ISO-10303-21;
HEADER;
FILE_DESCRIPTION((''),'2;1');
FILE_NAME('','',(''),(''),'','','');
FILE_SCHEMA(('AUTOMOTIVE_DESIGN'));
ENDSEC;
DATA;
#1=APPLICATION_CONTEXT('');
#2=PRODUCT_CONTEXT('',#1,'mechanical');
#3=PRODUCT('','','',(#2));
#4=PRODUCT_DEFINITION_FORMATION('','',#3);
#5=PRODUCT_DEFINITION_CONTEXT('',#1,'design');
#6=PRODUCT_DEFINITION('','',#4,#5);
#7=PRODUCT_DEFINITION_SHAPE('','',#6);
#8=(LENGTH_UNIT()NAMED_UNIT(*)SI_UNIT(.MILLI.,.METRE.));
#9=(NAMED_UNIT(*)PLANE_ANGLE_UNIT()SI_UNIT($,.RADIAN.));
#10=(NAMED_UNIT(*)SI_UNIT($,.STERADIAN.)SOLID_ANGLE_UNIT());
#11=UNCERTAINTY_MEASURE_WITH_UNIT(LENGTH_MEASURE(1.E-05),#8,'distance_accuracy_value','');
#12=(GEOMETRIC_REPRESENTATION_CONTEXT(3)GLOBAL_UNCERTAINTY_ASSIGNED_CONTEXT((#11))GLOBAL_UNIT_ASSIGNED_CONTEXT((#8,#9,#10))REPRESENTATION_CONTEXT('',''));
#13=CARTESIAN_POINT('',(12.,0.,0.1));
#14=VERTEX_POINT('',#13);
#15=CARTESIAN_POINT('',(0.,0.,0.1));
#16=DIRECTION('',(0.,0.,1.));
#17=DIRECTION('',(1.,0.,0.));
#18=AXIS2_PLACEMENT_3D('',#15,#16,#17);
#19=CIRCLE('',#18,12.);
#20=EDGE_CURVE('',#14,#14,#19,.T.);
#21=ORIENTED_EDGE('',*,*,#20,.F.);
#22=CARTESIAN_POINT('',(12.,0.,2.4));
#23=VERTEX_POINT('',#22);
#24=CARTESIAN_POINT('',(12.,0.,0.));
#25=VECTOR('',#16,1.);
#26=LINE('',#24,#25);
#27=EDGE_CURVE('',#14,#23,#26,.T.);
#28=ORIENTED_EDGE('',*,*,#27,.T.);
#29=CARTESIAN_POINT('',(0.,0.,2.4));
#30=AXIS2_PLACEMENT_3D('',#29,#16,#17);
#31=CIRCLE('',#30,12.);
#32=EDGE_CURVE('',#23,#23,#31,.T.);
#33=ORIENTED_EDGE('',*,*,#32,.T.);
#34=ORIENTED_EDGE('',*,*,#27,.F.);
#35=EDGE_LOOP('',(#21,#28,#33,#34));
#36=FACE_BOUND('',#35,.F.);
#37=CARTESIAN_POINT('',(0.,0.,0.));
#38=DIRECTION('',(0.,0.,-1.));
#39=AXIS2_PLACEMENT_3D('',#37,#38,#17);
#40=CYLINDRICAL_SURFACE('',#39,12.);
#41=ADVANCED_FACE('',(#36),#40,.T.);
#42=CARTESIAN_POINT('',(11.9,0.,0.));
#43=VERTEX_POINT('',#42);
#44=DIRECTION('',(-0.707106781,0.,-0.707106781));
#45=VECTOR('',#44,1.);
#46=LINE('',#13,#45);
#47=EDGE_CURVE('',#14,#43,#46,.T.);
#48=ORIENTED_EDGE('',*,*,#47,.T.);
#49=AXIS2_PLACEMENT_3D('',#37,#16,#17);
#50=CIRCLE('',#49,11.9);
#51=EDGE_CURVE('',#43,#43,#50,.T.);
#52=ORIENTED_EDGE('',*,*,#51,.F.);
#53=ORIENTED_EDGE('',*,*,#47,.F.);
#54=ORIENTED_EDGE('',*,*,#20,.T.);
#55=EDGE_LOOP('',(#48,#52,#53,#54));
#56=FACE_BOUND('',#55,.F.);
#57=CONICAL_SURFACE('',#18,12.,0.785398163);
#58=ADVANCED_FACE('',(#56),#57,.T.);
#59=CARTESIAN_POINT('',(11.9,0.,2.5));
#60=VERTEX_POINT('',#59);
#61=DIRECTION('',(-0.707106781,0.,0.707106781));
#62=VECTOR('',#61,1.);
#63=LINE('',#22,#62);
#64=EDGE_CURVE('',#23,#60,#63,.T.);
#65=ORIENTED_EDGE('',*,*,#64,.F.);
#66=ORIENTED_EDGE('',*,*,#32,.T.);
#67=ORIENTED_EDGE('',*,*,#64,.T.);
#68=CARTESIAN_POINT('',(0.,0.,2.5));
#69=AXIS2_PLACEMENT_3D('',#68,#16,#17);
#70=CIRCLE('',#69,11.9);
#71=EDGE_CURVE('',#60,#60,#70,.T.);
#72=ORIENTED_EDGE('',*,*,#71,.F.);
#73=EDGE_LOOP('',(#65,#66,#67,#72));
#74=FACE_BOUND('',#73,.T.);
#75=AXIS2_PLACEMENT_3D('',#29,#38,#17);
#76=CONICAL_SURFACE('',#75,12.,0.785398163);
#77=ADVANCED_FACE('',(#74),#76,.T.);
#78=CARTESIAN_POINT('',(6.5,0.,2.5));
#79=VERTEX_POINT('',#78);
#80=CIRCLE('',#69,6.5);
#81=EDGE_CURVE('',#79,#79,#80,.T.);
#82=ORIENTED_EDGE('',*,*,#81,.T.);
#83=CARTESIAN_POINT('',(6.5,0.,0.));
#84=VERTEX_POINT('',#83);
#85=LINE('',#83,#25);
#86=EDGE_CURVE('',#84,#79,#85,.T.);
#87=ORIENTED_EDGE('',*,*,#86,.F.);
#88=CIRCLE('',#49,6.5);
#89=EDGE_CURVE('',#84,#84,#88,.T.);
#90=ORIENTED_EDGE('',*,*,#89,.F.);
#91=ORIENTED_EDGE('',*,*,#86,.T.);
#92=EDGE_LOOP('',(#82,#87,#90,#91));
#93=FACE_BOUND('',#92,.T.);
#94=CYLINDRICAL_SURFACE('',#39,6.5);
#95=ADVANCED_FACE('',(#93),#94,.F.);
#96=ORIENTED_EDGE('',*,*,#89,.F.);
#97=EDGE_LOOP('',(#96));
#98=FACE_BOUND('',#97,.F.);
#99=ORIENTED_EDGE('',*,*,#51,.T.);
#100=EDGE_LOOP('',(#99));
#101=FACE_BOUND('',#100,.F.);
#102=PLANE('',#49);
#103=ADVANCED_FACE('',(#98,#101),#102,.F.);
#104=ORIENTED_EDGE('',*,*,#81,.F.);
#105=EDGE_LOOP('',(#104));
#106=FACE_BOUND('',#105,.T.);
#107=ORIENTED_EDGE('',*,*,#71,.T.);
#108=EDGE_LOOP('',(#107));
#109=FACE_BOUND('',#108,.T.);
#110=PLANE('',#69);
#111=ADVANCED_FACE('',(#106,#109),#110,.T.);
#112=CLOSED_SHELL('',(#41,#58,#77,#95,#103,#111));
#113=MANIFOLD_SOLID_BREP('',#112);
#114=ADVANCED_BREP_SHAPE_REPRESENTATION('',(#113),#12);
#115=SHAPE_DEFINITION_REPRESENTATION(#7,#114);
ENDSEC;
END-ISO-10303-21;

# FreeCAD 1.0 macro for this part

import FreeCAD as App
import Part
import Sketcher
from FreeCAD import Vector
Q = App.Units.Quantity


def edges_at(feature, points):
    """Names of the edges that pass closest to the given points."""
    edges = feature.Shape.Edges
    near = lambda p: min(range(len(edges)), key=lambda i: edges[i].distToShape(Part.Vertex(*p))[0])
    return sorted({f"Edge{near(p) + 1}" for p in points})

doc = App.newDocument("Part")
body = doc.addObject("PartDesign::Body", "Body")

# Sketch on XY plane
sketch1 = body.newObject("Sketcher::SketchObject", "Sketch")
sketch1.AttachmentSupport = (doc.getObject("XY_Plane"), [""])
sketch1.MapMode = "FlatFace"
sketch1.addGeometry([
    Part.Circle(Vector(0, 0, 0), Vector(0, 0, 1), 12),
    Part.Circle(Vector(0, 0, 0), Vector(0, 0, 1), 6),
], False)
sketch1.addConstraint([
    Sketcher.Constraint("Coincident", 0, 3, -1, 1),
    Sketcher.Constraint("Coincident", 1, 3, -1, 1),
    Sketcher.Constraint("Diameter", 0, Q("24 mm")),
    Sketcher.Constraint("Diameter", 1, Q("13 mm")),
])
pad1 = body.newObject("PartDesign::Pad", "Pad")
pad1.Profile = sketch1
pad1.Length = 2.5
doc.recompute()

chamfer = body.newObject("PartDesign::Chamfer", "Chamfer")
chamfer.Base = (pad1, edges_at(pad1, [(-12, 0, 2.5), (-12, 0, 0)]))
chamfer.Size = 0.1

doc.recompute()
